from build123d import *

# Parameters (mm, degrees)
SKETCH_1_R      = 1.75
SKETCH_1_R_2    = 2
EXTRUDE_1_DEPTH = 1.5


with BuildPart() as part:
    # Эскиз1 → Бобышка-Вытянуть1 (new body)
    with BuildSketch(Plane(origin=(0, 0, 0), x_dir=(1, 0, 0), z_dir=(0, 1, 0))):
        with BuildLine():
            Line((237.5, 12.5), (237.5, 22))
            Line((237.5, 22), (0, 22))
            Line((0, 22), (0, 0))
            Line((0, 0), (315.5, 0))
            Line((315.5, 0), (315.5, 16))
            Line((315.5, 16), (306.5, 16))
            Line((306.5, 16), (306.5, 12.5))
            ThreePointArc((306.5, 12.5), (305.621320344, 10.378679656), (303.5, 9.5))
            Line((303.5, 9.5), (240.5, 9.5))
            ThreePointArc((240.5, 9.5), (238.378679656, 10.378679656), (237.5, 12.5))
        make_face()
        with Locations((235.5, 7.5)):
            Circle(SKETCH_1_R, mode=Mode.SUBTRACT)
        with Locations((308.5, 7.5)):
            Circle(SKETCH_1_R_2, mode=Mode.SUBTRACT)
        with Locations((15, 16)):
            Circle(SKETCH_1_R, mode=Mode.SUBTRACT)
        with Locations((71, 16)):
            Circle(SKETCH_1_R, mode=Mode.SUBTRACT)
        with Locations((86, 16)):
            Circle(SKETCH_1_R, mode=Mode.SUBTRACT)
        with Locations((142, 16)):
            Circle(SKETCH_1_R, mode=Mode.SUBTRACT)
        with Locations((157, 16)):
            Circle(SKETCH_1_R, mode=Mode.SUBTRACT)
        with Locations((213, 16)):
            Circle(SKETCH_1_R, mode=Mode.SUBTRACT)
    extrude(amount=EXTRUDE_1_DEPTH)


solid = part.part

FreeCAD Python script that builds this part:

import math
import FreeCAD as App
import Part
import Sketcher

V = App.Vector

doc = App.newDocument("Part")
body = doc.addObject("PartDesign::Body", "Body")

sketch1 = doc.addObject("Sketcher::SketchObject", "Sketch")
body.addObject(sketch1)
sketch1.AttachmentSupport = (doc.XZ_Plane, [""])
sketch1.MapMode = "FlatFace"
sketch1.addGeometry([
    Part.LineSegment(V(237.5, -12.5, 0), V(237.5, -22, 0)),
    Part.LineSegment(V(237.5, -22, 0), V(0, -22, 0)),
    Part.LineSegment(V(0, -22, 0), V(0, 0, 0)),
    Part.LineSegment(V(0, 0, 0), V(315.5, 0, 0)),
    Part.LineSegment(V(315.5, 0, 0), V(315.5, -16, 0)),
    Part.LineSegment(V(315.5, -16, 0), V(306.5, -16, 0)),
    Part.LineSegment(V(306.5, -16, 0), V(306.5, -12.5, 0)),
    Part.ArcOfCircle(Part.Circle(V(303.5, -12.5, 0), V(0, 0, 1), 3), math.radians(0), math.radians(90)),
    Part.LineSegment(V(303.5, -9.5, 0), V(240.5, -9.5, 0)),
    Part.ArcOfCircle(Part.Circle(V(240.5, -12.5, 0), V(0, 0, 1), 3), math.radians(90), math.radians(180)),
    Part.Circle(V(235.5, -7.5, 0), V(0, 0, 1), 1.8),
    Part.Circle(V(308.5, -7.5, 0), V(0, 0, 1), 2),
    Part.Circle(V(15, -16, 0), V(0, 0, 1), 1.8),
    Part.Circle(V(71, -16, 0), V(0, 0, 1), 1.8),
    Part.Circle(V(86, -16, 0), V(0, 0, 1), 1.8),
    Part.Circle(V(142, -16, 0), V(0, 0, 1), 1.8),
    Part.Circle(V(157, -16, 0), V(0, 0, 1), 1.8),
    Part.Circle(V(213, -16, 0), V(0, 0, 1), 1.8),
], False)
sketch1.addConstraint([
    Sketcher.Constraint("Coincident", 0, 2, 1, 1),
    Sketcher.Constraint("Coincident", 1, 2, 2, 1),
    Sketcher.Constraint("Coincident", 2, 2, 3, 1),
    Sketcher.Constraint("Coincident", 3, 2, 4, 1),
    Sketcher.Constraint("Coincident", 4, 2, 5, 1),
    Sketcher.Constraint("Coincident", 5, 2, 6, 1),
    Sketcher.Constraint("Tangent", 6, 2, 7, 1),
    Sketcher.Constraint("Tangent", 7, 2, 8, 1),
    Sketcher.Constraint("Tangent", 8, 2, 9, 1),
    Sketcher.Constraint("Tangent", 9, 2, 0, 1),
    Sketcher.Constraint("Vertical", 0),
    Sketcher.Constraint("Horizontal", 1),
    Sketcher.Constraint("Vertical", 2),
    Sketcher.Constraint("Horizontal", 3),
    Sketcher.Constraint("Vertical", 4),
    Sketcher.Constraint("Horizontal", 5),
    Sketcher.Constraint("Vertical", 6),
    Sketcher.Constraint("Horizontal", 8),
    Sketcher.Constraint("Coincident", 2, 2, -1, 1),
    Sketcher.Constraint("Equal", 7, 9),
    Sketcher.Constraint("Equal", 10, 12),
    Sketcher.Constraint("Equal", 12, 13),
    Sketcher.Constraint("Equal", 13, 14),
    Sketcher.Constraint("Equal", 14, 15),
    Sketcher.Constraint("Equal", 15, 16),
    Sketcher.Constraint("Equal", 16, 17),
    Sketcher.Constraint("Horizontal", 10, 3, 11, 3),
    Sketcher.Constraint("Horizontal", 12, 3, 13, 3),
    Sketcher.Constraint("Horizontal", 13, 3, 14, 3),
    Sketcher.Constraint("Horizontal", 14, 3, 15, 3),
    Sketcher.Constraint("Horizontal", 15, 3, 16, 3),
    Sketcher.Constraint("Horizontal", 16, 3, 17, 3),
    Sketcher.Constraint("Horizontal", 17, 3, 4, 2),
    Sketcher.Constraint("Diameter", 11, 4.0),
    Sketcher.Constraint("Radius", 7, 3.0),
    Sketcher.Constraint("Diameter", 10, 3.5),
    Sketcher.Constraint("DistanceX", 5, 2, 5, 1, 9.0),
    Sketcher.Constraint("DistanceX", 8, 2, 8, 1, 63.0),
    Sketcher.Constraint("DistanceY", 2, 1, 2, 2, 22.0),
    Sketcher.Constraint("DistanceY", 4, 2, 4, 1, 16.0),
    Sketcher.Constraint("DistanceX", 1, 2, 1, 1, 237.5),
    Sketcher.Constraint("DistanceY", 0, 2, 0, 1, 9.5),
    Sketcher.Constraint("DistanceX", -1, 1, 12, 3, 15.0),
    Sketcher.Constraint("DistanceX", -1, 1, 13, 3, 71.0),
    Sketcher.Constraint("DistanceX", -1, 1, 14, 3, 86.0),
    Sketcher.Constraint("DistanceX", -1, 1, 15, 3, 142.0),
    Sketcher.Constraint("DistanceX", -1, 1, 16, 3, 157.0),
    Sketcher.Constraint("DistanceX", -1, 1, 17, 3, 213.0),
    Sketcher.Constraint("DistanceX", 10, 3, 9, 3, 5.0),
    Sketcher.Constraint("DistanceY", 9, 3, 10, 3, 5.0),
    Sketcher.Constraint("DistanceX", 7, 3, 11, 3, 5.0),
])
pad1 = doc.addObject("PartDesign::Pad", "Pad")
body.addObject(pad1)
pad1.Profile = sketch1
pad1.Length = 1.5
pad1.Reversed = True

doc.recompute()
